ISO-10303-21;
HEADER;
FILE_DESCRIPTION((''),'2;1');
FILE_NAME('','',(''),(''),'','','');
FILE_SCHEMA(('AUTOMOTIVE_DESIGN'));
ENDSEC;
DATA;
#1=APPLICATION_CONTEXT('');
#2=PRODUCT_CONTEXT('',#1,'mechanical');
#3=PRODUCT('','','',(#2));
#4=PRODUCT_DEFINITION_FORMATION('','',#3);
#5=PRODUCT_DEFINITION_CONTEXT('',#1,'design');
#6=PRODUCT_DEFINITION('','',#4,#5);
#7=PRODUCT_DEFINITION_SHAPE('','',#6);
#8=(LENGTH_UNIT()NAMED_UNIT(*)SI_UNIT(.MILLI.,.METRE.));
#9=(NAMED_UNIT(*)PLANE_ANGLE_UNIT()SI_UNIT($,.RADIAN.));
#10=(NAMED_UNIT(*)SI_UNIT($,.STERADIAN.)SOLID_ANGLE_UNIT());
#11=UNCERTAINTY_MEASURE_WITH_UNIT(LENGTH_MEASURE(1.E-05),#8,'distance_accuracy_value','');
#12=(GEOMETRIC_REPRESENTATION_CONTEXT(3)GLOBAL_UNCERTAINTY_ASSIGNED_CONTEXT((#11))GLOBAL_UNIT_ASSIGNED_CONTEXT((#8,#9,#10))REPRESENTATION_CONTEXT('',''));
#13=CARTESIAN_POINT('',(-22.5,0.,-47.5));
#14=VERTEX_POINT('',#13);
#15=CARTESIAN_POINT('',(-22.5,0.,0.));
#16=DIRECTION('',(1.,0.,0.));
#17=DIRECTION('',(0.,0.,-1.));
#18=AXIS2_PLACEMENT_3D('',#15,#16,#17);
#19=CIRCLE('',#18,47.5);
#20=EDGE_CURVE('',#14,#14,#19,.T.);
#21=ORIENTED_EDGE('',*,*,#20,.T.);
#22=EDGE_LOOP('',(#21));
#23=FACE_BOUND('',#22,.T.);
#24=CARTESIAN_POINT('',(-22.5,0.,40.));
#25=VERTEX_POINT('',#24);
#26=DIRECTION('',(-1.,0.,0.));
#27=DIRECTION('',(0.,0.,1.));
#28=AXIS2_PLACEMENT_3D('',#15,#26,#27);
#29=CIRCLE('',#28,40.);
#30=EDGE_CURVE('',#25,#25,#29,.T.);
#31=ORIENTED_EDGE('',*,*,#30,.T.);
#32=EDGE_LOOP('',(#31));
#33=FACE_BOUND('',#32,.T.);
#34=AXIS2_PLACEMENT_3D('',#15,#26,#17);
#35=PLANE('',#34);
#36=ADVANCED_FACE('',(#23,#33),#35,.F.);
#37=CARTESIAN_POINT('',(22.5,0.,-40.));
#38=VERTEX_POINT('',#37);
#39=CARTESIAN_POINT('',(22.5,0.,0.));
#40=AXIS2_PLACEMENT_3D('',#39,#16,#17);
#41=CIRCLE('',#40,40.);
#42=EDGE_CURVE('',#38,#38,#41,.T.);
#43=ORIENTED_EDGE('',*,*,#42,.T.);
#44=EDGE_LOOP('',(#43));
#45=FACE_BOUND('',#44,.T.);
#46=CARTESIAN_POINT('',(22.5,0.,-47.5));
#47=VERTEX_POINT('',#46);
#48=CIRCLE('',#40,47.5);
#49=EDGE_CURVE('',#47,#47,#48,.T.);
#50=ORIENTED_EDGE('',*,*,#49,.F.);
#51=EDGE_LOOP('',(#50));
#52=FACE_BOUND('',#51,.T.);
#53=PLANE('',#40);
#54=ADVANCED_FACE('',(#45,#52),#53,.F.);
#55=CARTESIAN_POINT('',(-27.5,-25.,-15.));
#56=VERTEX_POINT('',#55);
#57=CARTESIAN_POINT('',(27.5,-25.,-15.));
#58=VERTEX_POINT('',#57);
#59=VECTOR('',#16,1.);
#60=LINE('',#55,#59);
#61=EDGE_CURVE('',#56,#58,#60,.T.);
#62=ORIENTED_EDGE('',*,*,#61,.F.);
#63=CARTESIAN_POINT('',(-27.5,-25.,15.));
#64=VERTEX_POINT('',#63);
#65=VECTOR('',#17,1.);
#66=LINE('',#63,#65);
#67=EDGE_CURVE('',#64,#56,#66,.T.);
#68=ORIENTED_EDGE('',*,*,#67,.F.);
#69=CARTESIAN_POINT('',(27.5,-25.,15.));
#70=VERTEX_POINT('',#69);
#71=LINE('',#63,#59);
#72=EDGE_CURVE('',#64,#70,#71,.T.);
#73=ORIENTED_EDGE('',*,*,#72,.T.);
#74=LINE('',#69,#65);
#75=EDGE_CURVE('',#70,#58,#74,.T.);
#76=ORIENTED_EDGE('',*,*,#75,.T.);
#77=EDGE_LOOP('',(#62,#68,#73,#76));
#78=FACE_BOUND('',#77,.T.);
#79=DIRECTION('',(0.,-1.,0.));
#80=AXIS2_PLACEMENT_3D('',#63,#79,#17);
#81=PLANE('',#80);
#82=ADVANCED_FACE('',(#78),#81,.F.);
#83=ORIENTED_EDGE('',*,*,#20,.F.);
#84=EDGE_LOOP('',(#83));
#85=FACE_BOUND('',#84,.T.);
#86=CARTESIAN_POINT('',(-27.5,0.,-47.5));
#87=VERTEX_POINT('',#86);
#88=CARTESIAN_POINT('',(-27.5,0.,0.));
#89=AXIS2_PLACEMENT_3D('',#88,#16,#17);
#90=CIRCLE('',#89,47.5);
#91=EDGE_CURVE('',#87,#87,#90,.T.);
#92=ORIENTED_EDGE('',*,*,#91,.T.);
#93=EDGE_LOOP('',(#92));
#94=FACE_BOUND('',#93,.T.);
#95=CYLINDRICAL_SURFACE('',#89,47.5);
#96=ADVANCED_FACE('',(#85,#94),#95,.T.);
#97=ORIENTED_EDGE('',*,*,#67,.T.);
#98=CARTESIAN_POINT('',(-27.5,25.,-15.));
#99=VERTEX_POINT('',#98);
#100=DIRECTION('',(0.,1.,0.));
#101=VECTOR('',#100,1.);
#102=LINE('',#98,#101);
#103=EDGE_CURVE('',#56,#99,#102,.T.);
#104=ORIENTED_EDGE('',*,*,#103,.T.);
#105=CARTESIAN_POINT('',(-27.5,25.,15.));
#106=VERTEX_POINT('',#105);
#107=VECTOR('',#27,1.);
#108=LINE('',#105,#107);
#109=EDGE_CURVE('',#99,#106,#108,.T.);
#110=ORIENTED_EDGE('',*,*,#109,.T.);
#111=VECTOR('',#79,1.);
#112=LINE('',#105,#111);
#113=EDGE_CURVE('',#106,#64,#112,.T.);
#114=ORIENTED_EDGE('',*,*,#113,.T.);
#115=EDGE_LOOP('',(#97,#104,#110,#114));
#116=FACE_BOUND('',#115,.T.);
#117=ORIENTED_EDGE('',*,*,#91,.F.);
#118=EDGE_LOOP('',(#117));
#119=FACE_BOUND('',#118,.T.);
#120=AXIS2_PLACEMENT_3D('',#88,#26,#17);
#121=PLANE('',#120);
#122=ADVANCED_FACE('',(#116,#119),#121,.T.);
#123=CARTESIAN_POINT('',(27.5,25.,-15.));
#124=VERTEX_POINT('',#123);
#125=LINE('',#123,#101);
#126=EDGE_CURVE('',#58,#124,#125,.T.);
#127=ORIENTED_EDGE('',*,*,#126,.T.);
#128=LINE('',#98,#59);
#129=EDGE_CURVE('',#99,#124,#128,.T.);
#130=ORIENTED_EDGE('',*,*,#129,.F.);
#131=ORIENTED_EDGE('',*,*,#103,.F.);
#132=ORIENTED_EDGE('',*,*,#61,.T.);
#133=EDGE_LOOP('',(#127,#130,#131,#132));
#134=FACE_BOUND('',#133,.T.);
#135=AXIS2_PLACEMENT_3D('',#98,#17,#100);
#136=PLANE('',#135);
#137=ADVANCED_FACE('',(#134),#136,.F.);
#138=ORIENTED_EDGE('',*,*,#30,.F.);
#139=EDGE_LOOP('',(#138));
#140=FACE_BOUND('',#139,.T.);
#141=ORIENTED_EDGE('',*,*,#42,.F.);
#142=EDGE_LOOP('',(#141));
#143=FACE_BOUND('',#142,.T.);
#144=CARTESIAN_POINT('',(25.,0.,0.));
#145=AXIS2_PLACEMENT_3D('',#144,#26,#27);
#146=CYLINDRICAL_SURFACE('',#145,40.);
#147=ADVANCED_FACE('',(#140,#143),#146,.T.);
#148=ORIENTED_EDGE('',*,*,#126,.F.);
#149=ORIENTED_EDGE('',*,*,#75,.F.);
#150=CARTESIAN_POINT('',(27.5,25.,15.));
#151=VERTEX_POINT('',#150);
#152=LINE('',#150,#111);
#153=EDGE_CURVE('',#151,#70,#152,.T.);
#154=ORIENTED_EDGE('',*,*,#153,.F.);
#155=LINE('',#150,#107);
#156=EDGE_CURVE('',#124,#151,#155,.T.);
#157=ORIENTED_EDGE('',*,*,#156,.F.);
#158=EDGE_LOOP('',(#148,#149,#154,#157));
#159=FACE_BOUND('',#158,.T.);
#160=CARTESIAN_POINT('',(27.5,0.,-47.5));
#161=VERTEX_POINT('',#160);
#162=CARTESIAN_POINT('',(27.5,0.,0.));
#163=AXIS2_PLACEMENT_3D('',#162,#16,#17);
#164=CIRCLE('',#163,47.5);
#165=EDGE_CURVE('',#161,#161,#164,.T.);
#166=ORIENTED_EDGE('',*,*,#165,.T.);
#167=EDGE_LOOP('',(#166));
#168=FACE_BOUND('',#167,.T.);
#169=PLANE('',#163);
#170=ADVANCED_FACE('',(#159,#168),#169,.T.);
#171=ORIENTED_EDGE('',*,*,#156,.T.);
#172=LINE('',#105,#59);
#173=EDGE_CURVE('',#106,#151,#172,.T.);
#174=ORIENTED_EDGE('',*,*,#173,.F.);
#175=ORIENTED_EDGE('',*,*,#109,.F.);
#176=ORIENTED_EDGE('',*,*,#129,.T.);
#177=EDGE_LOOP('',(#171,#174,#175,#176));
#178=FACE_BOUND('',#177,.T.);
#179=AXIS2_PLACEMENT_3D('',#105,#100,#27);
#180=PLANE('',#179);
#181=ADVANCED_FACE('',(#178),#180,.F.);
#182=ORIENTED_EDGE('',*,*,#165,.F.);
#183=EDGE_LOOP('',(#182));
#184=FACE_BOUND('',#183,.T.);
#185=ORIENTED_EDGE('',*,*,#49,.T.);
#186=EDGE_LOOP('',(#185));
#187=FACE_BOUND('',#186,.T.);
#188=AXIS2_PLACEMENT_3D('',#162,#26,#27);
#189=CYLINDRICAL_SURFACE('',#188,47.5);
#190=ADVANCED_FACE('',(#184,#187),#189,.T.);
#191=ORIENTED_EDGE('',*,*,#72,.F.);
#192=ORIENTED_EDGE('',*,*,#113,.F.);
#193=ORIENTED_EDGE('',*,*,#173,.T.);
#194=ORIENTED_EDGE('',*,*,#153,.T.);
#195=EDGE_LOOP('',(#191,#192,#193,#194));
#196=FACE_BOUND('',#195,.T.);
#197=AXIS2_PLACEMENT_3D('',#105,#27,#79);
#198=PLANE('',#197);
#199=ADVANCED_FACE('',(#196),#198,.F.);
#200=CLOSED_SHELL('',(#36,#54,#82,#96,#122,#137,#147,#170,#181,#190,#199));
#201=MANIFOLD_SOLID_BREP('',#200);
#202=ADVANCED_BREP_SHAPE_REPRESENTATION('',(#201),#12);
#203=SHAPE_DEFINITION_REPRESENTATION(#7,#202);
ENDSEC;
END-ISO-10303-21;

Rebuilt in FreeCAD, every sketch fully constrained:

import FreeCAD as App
import Part
import Sketcher
from FreeCAD import Vector

doc = App.newDocument("Part")
body = doc.addObject("PartDesign::Body", "Body")

sketch1 = body.newObject("Sketcher::SketchObject", "Sketch")
sketch1.AttachmentSupport = (doc.getObject("YZ_Plane"), [""])
sketch1.MapMode = "FlatFace"
sketch1.addGeometry(Part.Circle(Vector(0, 0, 0), Vector(0, 0, 1), 40), False)
sketch1.addConstraint(Sketcher.Constraint("Coincident", 0, 3, -1, 1))
sketch1.addConstraint(Sketcher.Constraint("Diameter", 0, 80.0))
pad1 = body.newObject("PartDesign::Pad", "Pad")
pad1.Profile = sketch1
pad1.Length = 50
pad1.Midplane = True

sketch2 = body.newObject("Sketcher::SketchObject", "Sketch001")
sketch2.AttachmentSupport = (doc.getObject("YZ_Plane"), [""])
sketch2.MapMode = "FlatFace"
sketch2.AttachmentOffset = App.Placement(Vector(0, 0, 25), App.Rotation())
sketch2.addGeometry(Part.Circle(Vector(0, 0, 0), Vector(0, 0, 1), 48), False)
sketch2.addConstraint(Sketcher.Constraint("Coincident", 0, 3, -1, 1))
sketch2.addConstraint(Sketcher.Constraint("Diameter", 0, 95.0))
pad2 = body.newObject("PartDesign::Pad", "Pad001")
pad2.Profile = sketch2
pad2.Length = 5
pad2.Midplane = True
doc.recompute()

mirrored = body.newObject("PartDesign::Mirrored", "Mirrored")
mirrored.Originals = [pad2]
mirrored.MirrorPlane = (doc.getObject("YZ_Plane"), [""])
body.Tip = mirrored

sketch3 = body.newObject("Sketcher::SketchObject", "Sketch002")
sketch3.AttachmentSupport = (doc.getObject("YZ_Plane"), [""])
sketch3.MapMode = "FlatFace"
sketch3.AttachmentOffset = App.Placement(Vector(0, 0, 25), App.Rotation())
sketch3.addGeometry(Part.LineSegment(Vector(25, 15, 0), Vector(-25, 15, 0)), False)
sketch3.addGeometry(Part.LineSegment(Vector(-25, 15, 0), Vector(-25, -15, 0)), False)
sketch3.addGeometry(Part.LineSegment(Vector(-25, -15, 0), Vector(25, -15, 0)), False)
sketch3.addGeometry(Part.LineSegment(Vector(25, -15, 0), Vector(25, 15, 0)), False)
sketch3.addConstraint(Sketcher.Constraint("Coincident", 0, 2, 1, 1))
sketch3.addConstraint(Sketcher.Constraint("Coincident", 1, 2, 2, 1))
sketch3.addConstraint(Sketcher.Constraint("Coincident", 2, 2, 3, 1))
sketch3.addConstraint(Sketcher.Constraint("Coincident", 3, 2, 0, 1))
sketch3.addConstraint(Sketcher.Constraint("Horizontal", 0))
sketch3.addConstraint(Sketcher.Constraint("Vertical", 1))
sketch3.addConstraint(Sketcher.Constraint("Horizontal", 2))
sketch3.addConstraint(Sketcher.Constraint("Vertical", 3))
sketch3.addConstraint(Sketcher.Constraint("Symmetric", 0, 2, 2, 2, -1, 1))
sketch3.addConstraint(Sketcher.Constraint("DistanceX", 0, 2, 0, 1, 50.0))
sketch3.addConstraint(Sketcher.Constraint("DistanceY", 1, 2, 1, 1, 30.0))
pocket1 = body.newObject("PartDesign::Pocket", "Pocket")
pocket1.Profile = sketch3
pocket1.Type = "ThroughAll"
pocket1.Midplane = True

doc.recompute()
